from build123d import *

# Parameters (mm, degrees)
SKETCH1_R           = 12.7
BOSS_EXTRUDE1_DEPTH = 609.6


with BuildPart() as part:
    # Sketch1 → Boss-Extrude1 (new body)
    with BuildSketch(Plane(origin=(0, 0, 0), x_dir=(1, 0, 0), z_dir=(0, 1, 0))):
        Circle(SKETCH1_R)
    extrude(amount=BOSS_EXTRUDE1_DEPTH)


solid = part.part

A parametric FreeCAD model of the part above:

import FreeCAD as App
import Part
import Sketcher
from FreeCAD import Vector
Q = App.Units.Quantity

doc = App.newDocument("Part")
params = doc.addObject("Spreadsheet::Sheet", "Params")
for row, (alias, value) in enumerate([
    ("sketch1_diameter", "1 in"),
    ("pad1_length", "24 in"),
], start=1):
    params.set(f"A{row}", alias)
    params.set(f"B{row}", "=" + value)
    params.setAlias(f"B{row}", alias)

body = doc.addObject("PartDesign::Body", "Body")

sketch1 = body.newObject("Sketcher::SketchObject", "Sketch")
sketch1.AttachmentSupport = (doc.getObject("XZ_Plane"), [""])
sketch1.MapMode = "FlatFace"
sketch1.addGeometry(Part.Circle(Vector(0, 0, 0), Vector(0, 0, 1), 12.7), False)
sketch1.addConstraint(Sketcher.Constraint("Coincident", 0, 3, -1, 1))
sketch1.addConstraint(Sketcher.Constraint("Diameter", 0, Q("1 in")))
sketch1.setExpression("Constraints[1]", "Params.sketch1_diameter")
pad1 = body.newObject("PartDesign::Pad", "Pad")
pad1.Profile = sketch1
pad1.setExpression("Length", "Params.pad1_length")
pad1.Reversed = True

doc.recompute()
